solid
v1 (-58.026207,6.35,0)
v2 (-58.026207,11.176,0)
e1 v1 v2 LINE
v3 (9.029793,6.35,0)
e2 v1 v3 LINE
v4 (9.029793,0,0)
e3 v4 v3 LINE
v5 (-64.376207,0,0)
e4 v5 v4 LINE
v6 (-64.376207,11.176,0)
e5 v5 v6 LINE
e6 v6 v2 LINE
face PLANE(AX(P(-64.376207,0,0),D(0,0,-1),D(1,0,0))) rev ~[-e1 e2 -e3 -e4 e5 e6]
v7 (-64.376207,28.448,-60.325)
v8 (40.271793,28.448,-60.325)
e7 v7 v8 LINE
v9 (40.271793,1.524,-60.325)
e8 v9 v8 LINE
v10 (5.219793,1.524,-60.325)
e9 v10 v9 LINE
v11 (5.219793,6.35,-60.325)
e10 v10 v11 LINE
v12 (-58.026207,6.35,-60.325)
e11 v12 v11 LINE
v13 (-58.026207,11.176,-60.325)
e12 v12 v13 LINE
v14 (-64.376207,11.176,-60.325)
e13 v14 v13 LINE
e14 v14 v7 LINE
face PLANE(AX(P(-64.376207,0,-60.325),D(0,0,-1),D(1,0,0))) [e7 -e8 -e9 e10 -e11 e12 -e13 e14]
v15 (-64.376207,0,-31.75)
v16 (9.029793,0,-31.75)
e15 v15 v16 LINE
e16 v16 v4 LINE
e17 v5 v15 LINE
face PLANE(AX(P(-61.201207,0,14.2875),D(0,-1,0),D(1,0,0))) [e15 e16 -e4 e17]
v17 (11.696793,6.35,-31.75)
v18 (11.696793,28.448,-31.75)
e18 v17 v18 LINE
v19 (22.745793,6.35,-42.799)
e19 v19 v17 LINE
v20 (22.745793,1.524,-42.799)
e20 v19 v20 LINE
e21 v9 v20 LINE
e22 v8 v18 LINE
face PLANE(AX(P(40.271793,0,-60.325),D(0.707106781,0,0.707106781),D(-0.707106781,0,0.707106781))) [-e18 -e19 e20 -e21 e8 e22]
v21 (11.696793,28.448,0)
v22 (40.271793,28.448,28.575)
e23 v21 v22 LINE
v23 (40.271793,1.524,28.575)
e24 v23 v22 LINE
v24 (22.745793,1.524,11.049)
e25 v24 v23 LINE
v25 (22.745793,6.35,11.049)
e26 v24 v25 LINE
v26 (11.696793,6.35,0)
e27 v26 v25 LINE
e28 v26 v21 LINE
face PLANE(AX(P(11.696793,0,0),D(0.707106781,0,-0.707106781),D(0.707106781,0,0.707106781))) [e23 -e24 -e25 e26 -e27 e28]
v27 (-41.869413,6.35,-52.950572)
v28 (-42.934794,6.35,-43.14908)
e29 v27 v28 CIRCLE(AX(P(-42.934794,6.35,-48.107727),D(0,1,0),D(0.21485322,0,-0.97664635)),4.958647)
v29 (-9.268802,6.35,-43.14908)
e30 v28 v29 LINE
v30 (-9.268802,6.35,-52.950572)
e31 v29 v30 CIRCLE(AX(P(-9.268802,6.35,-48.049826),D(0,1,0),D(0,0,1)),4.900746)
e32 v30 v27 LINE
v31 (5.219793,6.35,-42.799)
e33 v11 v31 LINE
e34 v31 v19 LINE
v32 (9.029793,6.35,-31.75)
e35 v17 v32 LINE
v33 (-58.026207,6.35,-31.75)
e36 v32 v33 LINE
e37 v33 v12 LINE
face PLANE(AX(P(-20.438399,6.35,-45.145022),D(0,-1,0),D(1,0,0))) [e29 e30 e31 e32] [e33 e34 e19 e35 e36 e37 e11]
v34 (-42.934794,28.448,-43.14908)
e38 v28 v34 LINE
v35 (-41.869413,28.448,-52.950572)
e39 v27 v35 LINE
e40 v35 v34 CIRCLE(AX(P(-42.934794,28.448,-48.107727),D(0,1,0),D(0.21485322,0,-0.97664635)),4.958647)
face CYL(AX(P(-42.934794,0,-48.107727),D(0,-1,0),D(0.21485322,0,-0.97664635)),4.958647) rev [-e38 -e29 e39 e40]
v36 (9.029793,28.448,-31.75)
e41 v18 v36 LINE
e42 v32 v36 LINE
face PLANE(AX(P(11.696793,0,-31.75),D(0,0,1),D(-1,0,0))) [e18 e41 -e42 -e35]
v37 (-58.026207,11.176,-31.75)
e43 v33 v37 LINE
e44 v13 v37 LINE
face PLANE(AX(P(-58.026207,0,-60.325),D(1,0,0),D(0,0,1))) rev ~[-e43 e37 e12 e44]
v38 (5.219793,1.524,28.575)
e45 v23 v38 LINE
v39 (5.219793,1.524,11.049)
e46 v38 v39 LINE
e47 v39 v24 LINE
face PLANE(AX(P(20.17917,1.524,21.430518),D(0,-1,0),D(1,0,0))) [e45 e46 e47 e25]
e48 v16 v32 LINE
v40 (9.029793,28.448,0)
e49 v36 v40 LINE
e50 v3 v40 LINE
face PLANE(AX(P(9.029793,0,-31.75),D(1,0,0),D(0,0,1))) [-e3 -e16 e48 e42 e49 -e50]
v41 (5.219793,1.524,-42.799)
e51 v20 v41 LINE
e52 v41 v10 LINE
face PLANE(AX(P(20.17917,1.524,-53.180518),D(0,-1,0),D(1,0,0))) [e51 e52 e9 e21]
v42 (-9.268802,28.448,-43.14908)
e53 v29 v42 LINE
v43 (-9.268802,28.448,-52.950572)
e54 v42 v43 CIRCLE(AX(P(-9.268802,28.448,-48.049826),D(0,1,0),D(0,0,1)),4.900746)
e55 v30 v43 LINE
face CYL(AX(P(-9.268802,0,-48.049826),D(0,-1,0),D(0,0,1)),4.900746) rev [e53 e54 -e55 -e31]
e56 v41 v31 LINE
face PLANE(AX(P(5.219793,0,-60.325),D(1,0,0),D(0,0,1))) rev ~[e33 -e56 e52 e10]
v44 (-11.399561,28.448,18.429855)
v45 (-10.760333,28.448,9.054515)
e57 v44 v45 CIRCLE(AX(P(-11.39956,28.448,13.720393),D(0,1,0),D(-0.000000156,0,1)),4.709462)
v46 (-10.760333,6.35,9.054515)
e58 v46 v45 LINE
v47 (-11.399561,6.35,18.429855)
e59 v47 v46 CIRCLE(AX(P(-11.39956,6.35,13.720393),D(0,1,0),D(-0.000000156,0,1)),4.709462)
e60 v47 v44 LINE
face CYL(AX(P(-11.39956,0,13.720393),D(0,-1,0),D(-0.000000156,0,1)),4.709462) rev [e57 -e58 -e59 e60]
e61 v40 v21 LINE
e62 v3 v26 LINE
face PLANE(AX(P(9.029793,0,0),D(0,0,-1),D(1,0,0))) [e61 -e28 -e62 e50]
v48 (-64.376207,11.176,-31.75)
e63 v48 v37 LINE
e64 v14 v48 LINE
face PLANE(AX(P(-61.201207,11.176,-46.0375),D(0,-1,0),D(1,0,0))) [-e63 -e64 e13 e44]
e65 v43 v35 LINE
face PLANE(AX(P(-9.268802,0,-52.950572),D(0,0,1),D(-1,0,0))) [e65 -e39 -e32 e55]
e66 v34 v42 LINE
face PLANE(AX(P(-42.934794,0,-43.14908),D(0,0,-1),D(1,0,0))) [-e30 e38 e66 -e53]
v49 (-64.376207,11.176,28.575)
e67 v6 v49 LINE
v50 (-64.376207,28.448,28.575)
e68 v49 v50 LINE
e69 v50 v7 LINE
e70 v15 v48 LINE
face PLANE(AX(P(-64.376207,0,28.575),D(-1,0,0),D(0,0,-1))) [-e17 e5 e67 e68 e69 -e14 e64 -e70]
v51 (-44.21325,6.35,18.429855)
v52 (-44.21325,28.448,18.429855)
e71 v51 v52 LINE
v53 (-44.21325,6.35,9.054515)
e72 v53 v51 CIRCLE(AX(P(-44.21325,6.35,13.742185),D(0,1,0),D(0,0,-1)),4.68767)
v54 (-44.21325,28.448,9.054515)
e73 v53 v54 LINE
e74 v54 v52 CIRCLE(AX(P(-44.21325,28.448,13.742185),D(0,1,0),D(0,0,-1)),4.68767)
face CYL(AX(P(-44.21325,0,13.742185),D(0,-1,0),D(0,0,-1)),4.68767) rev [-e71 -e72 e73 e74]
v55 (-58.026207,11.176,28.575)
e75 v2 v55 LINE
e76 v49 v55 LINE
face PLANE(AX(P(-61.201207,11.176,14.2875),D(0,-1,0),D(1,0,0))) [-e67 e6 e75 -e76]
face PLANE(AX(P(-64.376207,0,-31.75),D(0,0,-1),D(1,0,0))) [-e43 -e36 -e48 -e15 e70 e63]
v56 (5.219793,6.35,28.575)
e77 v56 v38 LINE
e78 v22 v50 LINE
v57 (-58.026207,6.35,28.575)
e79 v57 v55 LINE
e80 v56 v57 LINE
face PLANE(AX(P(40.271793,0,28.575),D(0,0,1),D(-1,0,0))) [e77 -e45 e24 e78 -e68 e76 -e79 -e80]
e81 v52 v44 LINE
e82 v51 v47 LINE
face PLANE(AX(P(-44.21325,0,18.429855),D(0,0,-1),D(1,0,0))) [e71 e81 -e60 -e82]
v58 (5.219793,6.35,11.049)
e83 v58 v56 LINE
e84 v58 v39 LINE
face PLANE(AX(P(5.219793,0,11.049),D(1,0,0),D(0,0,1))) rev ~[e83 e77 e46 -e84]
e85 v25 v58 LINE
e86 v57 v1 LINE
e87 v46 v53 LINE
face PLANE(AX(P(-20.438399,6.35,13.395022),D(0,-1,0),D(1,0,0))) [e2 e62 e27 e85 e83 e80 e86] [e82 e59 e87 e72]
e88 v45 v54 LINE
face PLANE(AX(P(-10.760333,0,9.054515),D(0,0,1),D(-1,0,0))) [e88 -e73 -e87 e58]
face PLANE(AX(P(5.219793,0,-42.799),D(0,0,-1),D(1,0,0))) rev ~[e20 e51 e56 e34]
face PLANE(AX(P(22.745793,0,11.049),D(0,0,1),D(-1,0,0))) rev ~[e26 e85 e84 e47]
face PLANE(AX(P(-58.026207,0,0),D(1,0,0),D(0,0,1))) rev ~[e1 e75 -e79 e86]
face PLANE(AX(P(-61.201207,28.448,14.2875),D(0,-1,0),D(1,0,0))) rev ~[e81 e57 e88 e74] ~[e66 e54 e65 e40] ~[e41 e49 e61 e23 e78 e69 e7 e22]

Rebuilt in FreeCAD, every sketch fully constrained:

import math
import FreeCAD as App
import Part
import Sketcher

V = App.Vector
Q = App.Units.Quantity

doc = App.newDocument("Part")
body = doc.addObject("PartDesign::Body", "Body")

sketch1 = body.newObject("Sketcher::SketchObject", "Sketch")
sketch1.AttachmentSupport = (doc.getObject("XZ_Plane"), [""])
sketch1.MapMode = "FlatFace"
sketch1.addGeometry(Part.LineSegment(V(-64.376207, 28.575, 0), V(-64.376207, -60.325, 0)), False)
sketch1.addGeometry(Part.LineSegment(V(-64.376207, -60.325, 0), V(40.271793, -60.325, 0)), False)
sketch1.addGeometry(Part.LineSegment(V(40.271793, -60.325, 0), V(11.696793, -31.75, 0)), False)
sketch1.addGeometry(Part.LineSegment(V(11.696793, -31.75, 0), V(9.029793, -31.75, 0)), False)
sketch1.addGeometry(Part.LineSegment(V(9.029793, -31.75, 0), V(9.029793, 0, 0)), False)
sketch1.addGeometry(Part.LineSegment(V(9.029793, 0, 0), V(11.696793, 0, 0)), False)
sketch1.addGeometry(Part.LineSegment(V(11.696793, 0, 0), V(40.271793, 28.575, 0)), False)
sketch1.addGeometry(Part.LineSegment(V(40.271793, 28.575, 0), V(-64.376207, 28.575, 0)), False)
sketch1.addGeometry(Part.LineSegment(V(-9.268802, -52.950572, 0), V(-41.869413, -52.950572, 0)), False)
sketch1.addGeometry(Part.ArcOfCircle(Part.Circle(V(-42.934794, -48.107727, 0), V(0, 0, 1), 4.958647), math.radians(89.999996), math.radians(282.406916)), False)
sketch1.addGeometry(Part.LineSegment(V(-42.934794, -43.14908, 0), V(-9.268802, -43.14908, 0)), False)
sketch1.addGeometry(Part.ArcOfCircle(Part.Circle(V(-9.268802, -48.049826, 0), V(0, 0, 1), 4.900746), math.radians(-90), math.radians(90)), False)
sketch1.addGeometry(Part.LineSegment(V(-10.760333, 9.054515, 0), V(-44.21325, 9.054515, 0)), False)
sketch1.addGeometry(Part.ArcOfCircle(Part.Circle(V(-44.21325, 13.742185, 0), V(0, 0, 1), 4.68767), math.radians(90), math.radians(270)), False)
sketch1.addGeometry(Part.LineSegment(V(-44.21325, 18.429855, 0), V(-11.399561, 18.429855, 0)), False)
sketch1.addGeometry(Part.ArcOfCircle(Part.Circle(V(-11.39956, 13.720393, 0), V(0, 0, 1), 4.709462), math.radians(-82.199018), math.radians(90.000009)), False)
sketch1.addConstraint(Sketcher.Constraint("Coincident", 0, 2, 1, 1))
sketch1.addConstraint(Sketcher.Constraint("Coincident", 1, 2, 2, 1))
sketch1.addConstraint(Sketcher.Constraint("Coincident", 2, 2, 3, 1))
sketch1.addConstraint(Sketcher.Constraint("Coincident", 3, 2, 4, 1))
sketch1.addConstraint(Sketcher.Constraint("Coincident", 4, 2, 5, 1))
sketch1.addConstraint(Sketcher.Constraint("Coincident", 5, 2, 6, 1))
sketch1.addConstraint(Sketcher.Constraint("Coincident", 6, 2, 7, 1))
sketch1.addConstraint(Sketcher.Constraint("Coincident", 7, 2, 0, 1))
sketch1.addConstraint(Sketcher.Constraint("Coincident", 8, 2, 9, 2))
sketch1.addConstraint(Sketcher.Constraint("Tangent", 9, 1, 10, 1))
sketch1.addConstraint(Sketcher.Constraint("Tangent", 10, 2, 11, 2))
sketch1.addConstraint(Sketcher.Constraint("Tangent", 11, 1, 8, 1))
sketch1.addConstraint(Sketcher.Constraint("Tangent", 12, 2, 13, 2))
sketch1.addConstraint(Sketcher.Constraint("Tangent", 13, 1, 14, 1))
sketch1.addConstraint(Sketcher.Constraint("Tangent", 14, 2, 15, 2))
sketch1.addConstraint(Sketcher.Constraint("Coincident", 15, 1, 12, 1))
sketch1.addConstraint(Sketcher.Constraint("Vertical", 0))
sketch1.addConstraint(Sketcher.Constraint("Horizontal", 1))
sketch1.addConstraint(Sketcher.Constraint("Horizontal", 3))
sketch1.addConstraint(Sketcher.Constraint("Vertical", 4))
sketch1.addConstraint(Sketcher.Constraint("Horizontal", 5))
sketch1.addConstraint(Sketcher.Constraint("Horizontal", 7))
sketch1.addConstraint(Sketcher.Constraint("Horizontal", 8))
sketch1.addConstraint(Sketcher.Constraint("Horizontal", 10))
sketch1.addConstraint(Sketcher.Constraint("Horizontal", 12))
sketch1.addConstraint(Sketcher.Constraint("Horizontal", 14))
sketch1.addConstraint(Sketcher.Constraint("PointOnObject", 4, 2, -1))
sketch1.addConstraint(Sketcher.Constraint("Perpendicular", 2, 6))
sketch1.addConstraint(Sketcher.Constraint("Vertical", 2, 2, 5, 2))
sketch1.addConstraint(Sketcher.Constraint("Vertical", 1, 2, 6, 2))
sketch1.addConstraint(Sketcher.Constraint("Equal", 2, 6))
sketch1.addConstraint(Sketcher.Constraint("DistanceY", 0, 2, 0, 1, Q("3.5 in")))
sketch1.addConstraint(Sketcher.Constraint("DistanceX", 1, 1, 1, 2, Q("4.12 in")))
sketch1.addConstraint(Sketcher.Constraint("DistanceY", 4, 1, 4, 2, Q("1.25 in")))
sketch1.addConstraint(Sketcher.Constraint("DistanceX", 3, 2, 3, 1, Q("0.105 in")))
sketch1.addConstraint(Sketcher.Constraint("Radius", 13, 4.68767))
sketch1.addConstraint(Sketcher.Constraint("Radius", 15, 4.709462))
sketch1.addConstraint(Sketcher.Constraint("Radius", 9, 4.958647))
sketch1.addConstraint(Sketcher.Constraint("Radius", 11, 4.900746))
sketch1.addConstraint(Sketcher.Constraint("DistanceX", 8, 2, 8, 1, 32.600611))
sketch1.addConstraint(Sketcher.Constraint("DistanceX", 14, 1, 14, 2, 32.813689))
sketch1.addConstraint(Sketcher.Constraint("DistanceX", 13, 3, -1, 1, 44.21325))
sketch1.addConstraint(Sketcher.Constraint("DistanceY", 9, 1, -1, 1, 43.14908))
sketch1.addConstraint(Sketcher.Constraint("DistanceY", 11, 3, 13, 3, 61.792011))
sketch1.addConstraint(Sketcher.Constraint("DistanceX", 15, 3, 11, 3, 2.130758))
sketch1.addConstraint(Sketcher.Constraint("DistanceX", 0, 2, -1, 1, 64.376207))
pad1 = body.newObject("PartDesign::Pad", "Pad")
pad1.Profile = sketch1
pad1.Length = Q("1.12 in")
pad1.Reversed = True

sketch2 = body.newObject("Sketcher::SketchObject", "Sketch001")
sketch2.AttachmentSupport = (doc.getObject("XZ_Plane"), [""])
sketch2.MapMode = "FlatFace"
sketch2.addGeometry(Part.LineSegment(V(5.219793, 28.575, 0), V(-58.026207, 28.575, 0)), False)
sketch2.addGeometry(Part.LineSegment(V(-58.026207, 28.575, 0), V(-58.026207, 0, 0)), False)
sketch2.addGeometry(Part.LineSegment(V(-58.026207, 0, 0), V(11.696793, 0, 0)), False)
sketch2.addGeometry(Part.LineSegment(V(11.696793, 0, 0), V(22.745793, 11.049, 0)), False)
sketch2.addGeometry(Part.LineSegment(V(22.745793, 11.049, 0), V(5.219793, 11.049, 0)), False)
sketch2.addGeometry(Part.LineSegment(V(5.219793, 11.049, 0), V(5.219793, 28.575, 0)), False)
sketch2.addGeometry(Part.LineSegment(V(-10.760333, 9.054515, 0), V(-44.21325, 9.054515, 0)), False)
sketch2.addGeometry(Part.ArcOfCircle(Part.Circle(V(-44.21325, 13.742185, 0), V(0, 0, 1), 4.68767), math.radians(90), math.radians(270)), False)
sketch2.addGeometry(Part.LineSegment(V(-44.21325, 18.429855, 0), V(-11.399561, 18.429855, 0)), False)
sketch2.addGeometry(Part.ArcOfCircle(Part.Circle(V(-11.39956, 13.720393, 0), V(0, 0, 1), 4.709462), math.radians(-82.199018), math.radians(90.000009)), False)
sketch2.addConstraint(Sketcher.Constraint("Coincident", 0, 2, 1, 1))
sketch2.addConstraint(Sketcher.Constraint("Coincident", 1, 2, 2, 1))
sketch2.addConstraint(Sketcher.Constraint("Coincident", 2, 2, 3, 1))
sketch2.addConstraint(Sketcher.Constraint("Coincident", 3, 2, 4, 1))
sketch2.addConstraint(Sketcher.Constraint("Coincident", 4, 2, 5, 1))
sketch2.addConstraint(Sketcher.Constraint("Coincident", 5, 2, 0, 1))
sketch2.addConstraint(Sketcher.Constraint("Tangent", 6, 2, 7, 2))
sketch2.addConstraint(Sketcher.Constraint("Tangent", 7, 1, 8, 1))
sketch2.addConstraint(Sketcher.Constraint("Tangent", 8, 2, 9, 2))
sketch2.addConstraint(Sketcher.Constraint("Coincident", 9, 1, 6, 1))
sketch2.addConstraint(Sketcher.Constraint("Horizontal", 0))
sketch2.addConstraint(Sketcher.Constraint("Vertical", 1))
sketch2.addConstraint(Sketcher.Constraint("Horizontal", 2))
sketch2.addConstraint(Sketcher.Constraint("Horizontal", 4))
sketch2.addConstraint(Sketcher.Constraint("Vertical", 5))
sketch2.addConstraint(Sketcher.Constraint("Horizontal", 6))
sketch2.addConstraint(Sketcher.Constraint("Horizontal", 8))
sketch2.addConstraint(Sketcher.Constraint("PointOnObject", 1, 2, -1))
sketch2.addConstraint(Sketcher.Constraint("Equal", 4, 5))
sketch2.addConstraint(Sketcher.Constraint("Angle", 3, Q("45 deg")))
sketch2.addConstraint(Sketcher.Constraint("DistanceX", 0, 2, 0, 1, Q("2.49 in")))
sketch2.addConstraint(Sketcher.Constraint("DistanceX", 4, 2, 4, 1, Q("0.69 in")))
sketch2.addConstraint(Sketcher.Constraint("DistanceX", 2, 1, 2, 2, Q("2.745 in")))
sketch2.addConstraint(Sketcher.Constraint("Radius", 7, 4.68767))
sketch2.addConstraint(Sketcher.Constraint("Radius", 9, 4.709462))
sketch2.addConstraint(Sketcher.Constraint("DistanceX", 8, 1, 8, 2, 32.813689))
sketch2.addConstraint(Sketcher.Constraint("DistanceX", 7, 3, -1, 1, 44.21325))
sketch2.addConstraint(Sketcher.Constraint("DistanceY", -1, 1, 7, 3, 13.742185))
sketch2.addConstraint(Sketcher.Constraint("DistanceX", 0, 2, -1, 1, 58.026207))
pocket1 = body.newObject("PartDesign::Pocket", "Pocket")
pocket1.Profile = sketch2
pocket1.Length = Q("0.25 in")
pocket1.Reversed = True

sketch3 = body.newObject("Sketcher::SketchObject", "Sketch002")
sketch3.AttachmentSupport = (doc.getObject("XZ_Plane"), [""])
sketch3.MapMode = "FlatFace"
sketch3.addGeometry(Part.LineSegment(V(-58.026207, -31.75, 0), V(-58.026207, -60.325, 0)), False)
sketch3.addGeometry(Part.LineSegment(V(-58.026207, -60.325, 0), V(5.219793, -60.325, 0)), False)
sketch3.addGeometry(Part.LineSegment(V(5.219793, -60.325, 0), V(5.219793, -42.799, 0)), False)
sketch3.addGeometry(Part.LineSegment(V(5.219793, -42.799, 0), V(22.745793, -42.799, 0)), False)
sketch3.addGeometry(Part.LineSegment(V(22.745793, -42.799, 0), V(11.696793, -31.75, 0)), False)
sketch3.addGeometry(Part.LineSegment(V(11.696793, -31.75, 0), V(-58.026207, -31.75, 0)), False)
sketch3.addGeometry(Part.LineSegment(V(-9.268802, -52.950572, 0), V(-41.869413, -52.950572, 0)), False)
sketch3.addGeometry(Part.ArcOfCircle(Part.Circle(V(-42.934794, -48.107727, 0), V(0, 0, 1), 4.958647), math.radians(89.999996), math.radians(282.406916)), False)
sketch3.addGeometry(Part.LineSegment(V(-42.934794, -43.14908, 0), V(-9.268802, -43.14908, 0)), False)
sketch3.addGeometry(Part.ArcOfCircle(Part.Circle(V(-9.268802, -48.049826, 0), V(0, 0, 1), 4.900746), math.radians(-90), math.radians(90)), False)
sketch3.addConstraint(Sketcher.Constraint("Coincident", 0, 2, 1, 1))
sketch3.addConstraint(Sketcher.Constraint("Coincident", 1, 2, 2, 1))
sketch3.addConstraint(Sketcher.Constraint("Coincident", 2, 2, 3, 1))
sketch3.addConstraint(Sketcher.Constraint("Coincident", 3, 2, 4, 1))
sketch3.addConstraint(Sketcher.Constraint("Coincident", 4, 2, 5, 1))
sketch3.addConstraint(Sketcher.Constraint("Coincident", 5, 2, 0, 1))
sketch3.addConstraint(Sketcher.Constraint("Coincident", 6, 2, 7, 2))
sketch3.addConstraint(Sketcher.Constraint("Tangent", 7, 1, 8, 1))
sketch3.addConstraint(Sketcher.Constraint("Tangent", 8, 2, 9, 2))
sketch3.addConstraint(Sketcher.Constraint("Tangent", 9, 1, 6, 1))
sketch3.addConstraint(Sketcher.Constraint("Vertical", 0))
sketch3.addConstraint(Sketcher.Constraint("Horizontal", 1))
sketch3.addConstraint(Sketcher.Constraint("Vertical", 2))
sketch3.addConstraint(Sketcher.Constraint("Horizontal", 3))
sketch3.addConstraint(Sketcher.Constraint("Horizontal", 5))
sketch3.addConstraint(Sketcher.Constraint("Horizontal", 6))
sketch3.addConstraint(Sketcher.Constraint("Horizontal", 8))
sketch3.addConstraint(Sketcher.Constraint("Equal", 3, 2))
sketch3.addConstraint(Sketcher.Constraint("Angle", 4, Q("135 deg")))
sketch3.addConstraint(Sketcher.Constraint("DistanceX", 1, 1, 1, 2, Q("2.49 in")))
sketch3.addConstraint(Sketcher.Constraint("DistanceX", 3, 1, 3, 2, Q("0.69 in")))
sketch3.addConstraint(Sketcher.Constraint("DistanceX", 5, 2, 5, 1, Q("2.745 in")))
sketch3.addConstraint(Sketcher.Constraint("DistanceY", 4, 2, -1, 1, Q("1.25 in")))
sketch3.addConstraint(Sketcher.Constraint("Radius", 7, 4.958647))
sketch3.addConstraint(Sketcher.Constraint("Radius", 9, 4.900746))
sketch3.addConstraint(Sketcher.Constraint("DistanceX", 6, 2, 6, 1, 32.600611))
sketch3.addConstraint(Sketcher.Constraint("DistanceY", 7, 1, -1, 1, 43.14908))
sketch3.addConstraint(Sketcher.Constraint("DistanceX", 7, 3, -1, 1, 42.934794))
sketch3.addConstraint(Sketcher.Constraint("DistanceX", 0, 2, -1, 1, 58.026207))
pocket2 = body.newObject("PartDesign::Pocket", "Pocket001")
pocket2.Profile = sketch3
pocket2.Length = Q("0.25 in")
pocket2.Reversed = True

sketch4 = body.newObject("Sketcher::SketchObject", "Sketch003")
sketch4.AttachmentSupport = (doc.getObject("XZ_Plane"), [""])
sketch4.MapMode = "FlatFace"
sketch4.addGeometry(Part.LineSegment(V(5.219793, 28.575, 0), V(-58.026207, 28.575, 0)), False)
sketch4.addGeometry(Part.LineSegment(V(-58.026207, 28.575, 0), V(-58.026207, 0, 0)), False)
sketch4.addGeometry(Part.LineSegment(V(-58.026207, 0, 0), V(11.696793, 0, 0)), False)
sketch4.addGeometry(Part.LineSegment(V(11.696793, 0, 0), V(22.745793, 11.049, 0)), False)
sketch4.addGeometry(Part.LineSegment(V(22.745793, 11.049, 0), V(5.219793, 11.049, 0)), False)
sketch4.addGeometry(Part.LineSegment(V(5.219793, 11.049, 0), V(5.219793, 28.575, 0)), False)
sketch4.addGeometry(Part.LineSegment(V(-10.760333, 9.054515, 0), V(-44.21325, 9.054515, 0)), False)
sketch4.addGeometry(Part.ArcOfCircle(Part.Circle(V(-44.21325, 13.742185, 0), V(0, 0, 1), 4.68767), math.radians(90), math.radians(270)), False)
sketch4.addGeometry(Part.LineSegment(V(-44.21325, 18.429855, 0), V(-11.399561, 18.429855, 0)), False)
sketch4.addGeometry(Part.ArcOfCircle(Part.Circle(V(-11.39956, 13.720393, 0), V(0, 0, 1), 4.709462), math.radians(-82.199018), math.radians(90.000009)), False)
sketch4.addConstraint(Sketcher.Constraint("Coincident", 0, 2, 1, 1))
sketch4.addConstraint(Sketcher.Constraint("Coincident", 1, 2, 2, 1))
sketch4.addConstraint(Sketcher.Constraint("Coincident", 2, 2, 3, 1))
sketch4.addConstraint(Sketcher.Constraint("Coincident", 3, 2, 4, 1))
sketch4.addConstraint(Sketcher.Constraint("Coincident", 4, 2, 5, 1))
sketch4.addConstraint(Sketcher.Constraint("Coincident", 5, 2, 0, 1))
sketch4.addConstraint(Sketcher.Constraint("Tangent", 6, 2, 7, 2))
sketch4.addConstraint(Sketcher.Constraint("Tangent", 7, 1, 8, 1))
sketch4.addConstraint(Sketcher.Constraint("Tangent", 8, 2, 9, 2))
sketch4.addConstraint(Sketcher.Constraint("Coincident", 9, 1, 6, 1))
sketch4.addConstraint(Sketcher.Constraint("Horizontal", 0))
sketch4.addConstraint(Sketcher.Constraint("Vertical", 1))
sketch4.addConstraint(Sketcher.Constraint("Horizontal", 2))
sketch4.addConstraint(Sketcher.Constraint("Horizontal", 4))
sketch4.addConstraint(Sketcher.Constraint("Vertical", 5))
sketch4.addConstraint(Sketcher.Constraint("Horizontal", 6))
sketch4.addConstraint(Sketcher.Constraint("Horizontal", 8))
sketch4.addConstraint(Sketcher.Constraint("PointOnObject", 1, 2, -1))
sketch4.addConstraint(Sketcher.Constraint("Equal", 4, 5))
sketch4.addConstraint(Sketcher.Constraint("Angle", 3, Q("45 deg")))
sketch4.addConstraint(Sketcher.Constraint("DistanceX", 0, 2, 0, 1, Q("2.49 in")))
sketch4.addConstraint(Sketcher.Constraint("DistanceX", 4, 2, 4, 1, Q("0.69 in")))
sketch4.addConstraint(Sketcher.Constraint("DistanceX", 2, 1, 2, 2, Q("2.745 in")))
sketch4.addConstraint(Sketcher.Constraint("Radius", 7, 4.68767))
sketch4.addConstraint(Sketcher.Constraint("Radius", 9, 4.709462))
sketch4.addConstraint(Sketcher.Constraint("DistanceX", 8, 1, 8, 2, 32.813689))
sketch4.addConstraint(Sketcher.Constraint("DistanceX", 7, 3, -1, 1, 44.21325))
sketch4.addConstraint(Sketcher.Constraint("DistanceY", -1, 1, 7, 3, 13.742185))
sketch4.addConstraint(Sketcher.Constraint("DistanceX", 0, 2, -1, 1, 58.026207))
pocket3 = body.newObject("PartDesign::Pocket", "Pocket002")
pocket3.Profile = sketch4
pocket3.Length = Q("0.25 in")

sketch5 = body.newObject("Sketcher::SketchObject", "Sketch004")
sketch5.AttachmentSupport = (doc.getObject("XZ_Plane"), [""])
sketch5.MapMode = "FlatFace"
sketch5.addGeometry(Part.LineSegment(V(5.219793, 28.575, 0), V(-58.026207, 28.575, 0)), False)
sketch5.addGeometry(Part.LineSegment(V(-58.026207, 28.575, 0), V(-58.026207, 0, 0)), False)
sketch5.addGeometry(Part.LineSegment(V(-58.026207, 0, 0), V(11.696793, 0, 0)), False)
sketch5.addGeometry(Part.LineSegment(V(11.696793, 0, 0), V(22.745793, 11.049, 0)), False)
sketch5.addGeometry(Part.LineSegment(V(22.745793, 11.049, 0), V(5.219793, 11.049, 0)), False)
sketch5.addGeometry(Part.LineSegment(V(5.219793, 11.049, 0), V(5.219793, 28.575, 0)), False)
sketch5.addGeometry(Part.LineSegment(V(-10.760333, 9.054515, 0), V(-44.21325, 9.054515, 0)), False)
sketch5.addGeometry(Part.ArcOfCircle(Part.Circle(V(-44.21325, 13.742185, 0), V(0, 0, 1), 4.68767), math.radians(90), math.radians(270)), False)
sketch5.addGeometry(Part.LineSegment(V(-44.21325, 18.429855, 0), V(-11.399561, 18.429855, 0)), False)
sketch5.addGeometry(Part.ArcOfCircle(Part.Circle(V(-11.39956, 13.720393, 0), V(0, 0, 1), 4.709462), math.radians(-82.199018), math.radians(90.000009)), False)
sketch5.addGeometry(Part.LineSegment(V(-58.026207, -31.75, 0), V(-58.026207, -60.325, 0)), False)
sketch5.addGeometry(Part.LineSegment(V(-58.026207, -60.325, 0), V(5.219793, -60.325, 0)), False)
sketch5.addGeometry(Part.LineSegment(V(5.219793, -60.325, 0), V(5.219793, -42.799, 0)), False)
sketch5.addGeometry(Part.LineSegment(V(5.219793, -42.799, 0), V(22.745793, -42.799, 0)), False)
sketch5.addGeometry(Part.LineSegment(V(22.745793, -42.799, 0), V(11.696793, -31.75, 0)), False)
sketch5.addGeometry(Part.LineSegment(V(11.696793, -31.75, 0), V(-58.026207, -31.75, 0)), False)
sketch5.addGeometry(Part.LineSegment(V(-9.268802, -52.950572, 0), V(-41.869413, -52.950572, 0)), False)
sketch5.addGeometry(Part.ArcOfCircle(Part.Circle(V(-42.934794, -48.107727, 0), V(0, 0, 1), 4.958647), math.radians(89.999996), math.radians(282.406916)), False)
sketch5.addGeometry(Part.LineSegment(V(-42.934794, -43.14908, 0), V(-9.268802, -43.14908, 0)), False)
sketch5.addGeometry(Part.ArcOfCircle(Part.Circle(V(-9.268802, -48.049826, 0), V(0, 0, 1), 4.900746), math.radians(-90), math.radians(90)), False)
sketch5.addConstraint(Sketcher.Constraint("Coincident", 0, 2, 1, 1))
sketch5.addConstraint(Sketcher.Constraint("Coincident", 1, 2, 2, 1))
sketch5.addConstraint(Sketcher.Constraint("Coincident", 2, 2, 3, 1))
sketch5.addConstraint(Sketcher.Constraint("Coincident", 3, 2, 4, 1))
sketch5.addConstraint(Sketcher.Constraint("Coincident", 4, 2, 5, 1))
sketch5.addConstraint(Sketcher.Constraint("Coincident", 5, 2, 0, 1))
sketch5.addConstraint(Sketcher.Constraint("Tangent", 6, 2, 7, 2))
sketch5.addConstraint(Sketcher.Constraint("Tangent", 7, 1, 8, 1))
sketch5.addConstraint(Sketcher.Constraint("Tangent", 8, 2, 9, 2))
sketch5.addConstraint(Sketcher.Constraint("Coincident", 9, 1, 6, 1))
sketch5.addConstraint(Sketcher.Constraint("Coincident", 10, 2, 11, 1))
sketch5.addConstraint(Sketcher.Constraint("Coincident", 11, 2, 12, 1))
sketch5.addConstraint(Sketcher.Constraint("Coincident", 12, 2, 13, 1))
sketch5.addConstraint(Sketcher.Constraint("Coincident", 13, 2, 14, 1))
sketch5.addConstraint(Sketcher.Constraint("Coincident", 14, 2, 15, 1))
sketch5.addConstraint(Sketcher.Constraint("Coincident", 15, 2, 10, 1))
sketch5.addConstraint(Sketcher.Constraint("Coincident", 16, 2, 17, 2))
sketch5.addConstraint(Sketcher.Constraint("Tangent", 17, 1, 18, 1))
sketch5.addConstraint(Sketcher.Constraint("Tangent", 18, 2, 19, 2))
sketch5.addConstraint(Sketcher.Constraint("Tangent", 19, 1, 16, 1))
sketch5.addConstraint(Sketcher.Constraint("Horizontal", 0))
sketch5.addConstraint(Sketcher.Constraint("Vertical", 1))
sketch5.addConstraint(Sketcher.Constraint("Horizontal", 2))
sketch5.addConstraint(Sketcher.Constraint("Horizontal", 4))
sketch5.addConstraint(Sketcher.Constraint("Vertical", 5))
sketch5.addConstraint(Sketcher.Constraint("Horizontal", 6))
sketch5.addConstraint(Sketcher.Constraint("Horizontal", 8))
sketch5.addConstraint(Sketcher.Constraint("Vertical", 10))
sketch5.addConstraint(Sketcher.Constraint("Horizontal", 11))
sketch5.addConstraint(Sketcher.Constraint("Vertical", 12))
sketch5.addConstraint(Sketcher.Constraint("Horizontal", 13))
sketch5.addConstraint(Sketcher.Constraint("Horizontal", 15))
sketch5.addConstraint(Sketcher.Constraint("Horizontal", 16))
sketch5.addConstraint(Sketcher.Constraint("Horizontal", 18))
sketch5.addConstraint(Sketcher.Constraint("PointOnObject", 1, 2, -1))
sketch5.addConstraint(Sketcher.Constraint("Perpendicular", 3, 14))
sketch5.addConstraint(Sketcher.Constraint("Vertical", 1, 2, 10, 2))
sketch5.addConstraint(Sketcher.Constraint("Vertical", 5, 2, 11, 2))
sketch5.addConstraint(Sketcher.Constraint("Vertical", 3, 2, 13, 2))
sketch5.addConstraint(Sketcher.Constraint("Vertical", 2, 2, 14, 2))
sketch5.addConstraint(Sketcher.Constraint("Equal", 13, 5))
sketch5.addConstraint(Sketcher.Constraint("Equal", 1, 10))
sketch5.addConstraint(Sketcher.Constraint("Equal", 5, 12))
sketch5.addConstraint(Sketcher.Constraint("DistanceX", 0, 2, 0, 1, Q("2.49 in")))
sketch5.addConstraint(Sketcher.Constraint("DistanceX", 4, 2, 4, 1, Q("0.69 in")))
sketch5.addConstraint(Sketcher.Constraint("DistanceX", 2, 1, 2, 2, Q("2.745 in")))
sketch5.addConstraint(Sketcher.Constraint("DistanceY", 14, 2, -1, 1, Q("1.25 in")))
sketch5.addConstraint(Sketcher.Constraint("Radius", 7, 4.68767))
sketch5.addConstraint(Sketcher.Constraint("Radius", 9, 4.709462))
sketch5.addConstraint(Sketcher.Constraint("Radius", 17, 4.958647))
sketch5.addConstraint(Sketcher.Constraint("Radius", 19, 4.900746))
sketch5.addConstraint(Sketcher.Constraint("DistanceX", 8, 1, 8, 2, 32.813689))
sketch5.addConstraint(Sketcher.Constraint("DistanceX", 16, 2, 16, 1, 32.600611))
sketch5.addConstraint(Sketcher.Constraint("DistanceX", 7, 3, -1, 1, 44.21325))
sketch5.addConstraint(Sketcher.Constraint("DistanceY", 17, 1, -1, 1, 43.14908))
sketch5.addConstraint(Sketcher.Constraint("DistanceY", 17, 3, 9, 3, 61.82812))
sketch5.addConstraint(Sketcher.Constraint("DistanceX", 9, 3, 19, 3, 2.130758))
sketch5.addConstraint(Sketcher.Constraint("DistanceX", 0, 2, -1, 1, 58.026207))
pocket4 = body.newObject("PartDesign::Pocket", "Pocket003")
pocket4.Profile = sketch5
pocket4.Length = Q("0.44 in")
pocket4.Midplane = True

sketch6 = body.newObject("Sketcher::SketchObject", "Sketch005")
sketch6.AttachmentSupport = (doc.getObject("XZ_Plane"), [""])
sketch6.MapMode = "FlatFace"
sketch6.addGeometry(Part.LineSegment(V(5.219793, 28.575, 0), V(-58.026207, 28.575, 0)), False)
sketch6.addGeometry(Part.LineSegment(V(-58.026207, 28.575, 0), V(-58.026207, 0, 0)), False)
sketch6.addGeometry(Part.LineSegment(V(-58.026207, 0, 0), V(11.696793, 0, 0)), False)
sketch6.addGeometry(Part.LineSegment(V(11.696793, 0, 0), V(22.745793, 11.049, 0)), False)
sketch6.addGeometry(Part.LineSegment(V(22.745793, 11.049, 0), V(5.219793, 11.049, 0)), False)
sketch6.addGeometry(Part.LineSegment(V(5.219793, 11.049, 0), V(5.219793, 28.575, 0)), False)
sketch6.addGeometry(Part.LineSegment(V(-10.760333, 9.054515, 0), V(-44.21325, 9.054515, 0)), False)
sketch6.addGeometry(Part.ArcOfCircle(Part.Circle(V(-44.21325, 13.742185, 0), V(0, 0, 1), 4.68767), math.radians(90), math.radians(270)), False)
sketch6.addGeometry(Part.LineSegment(V(-44.21325, 18.429855, 0), V(-11.399561, 18.429855, 0)), False)
sketch6.addGeometry(Part.ArcOfCircle(Part.Circle(V(-11.39956, 13.720393, 0), V(0, 0, 1), 4.709462), math.radians(-82.199018), math.radians(90.000009)), False)
sketch6.addGeometry(Part.LineSegment(V(-58.026207, -31.75, 0), V(-58.026207, -60.325, 0)), False)
sketch6.addGeometry(Part.LineSegment(V(-58.026207, -60.325, 0), V(5.219793, -60.325, 0)), False)
sketch6.addGeometry(Part.LineSegment(V(5.219793, -60.325, 0), V(5.219793, -42.799, 0)), False)
sketch6.addGeometry(Part.LineSegment(V(5.219793, -42.799, 0), V(22.745793, -42.799, 0)), False)
sketch6.addGeometry(Part.LineSegment(V(22.745793, -42.799, 0), V(11.696793, -31.75, 0)), False)
sketch6.addGeometry(Part.LineSegment(V(11.696793, -31.75, 0), V(-58.026207, -31.75, 0)), False)
sketch6.addGeometry(Part.LineSegment(V(-9.268802, -52.950572, 0), V(-41.869413, -52.950572, 0)), False)
sketch6.addGeometry(Part.ArcOfCircle(Part.Circle(V(-42.934794, -48.107727, 0), V(0, 0, 1), 4.958647), math.radians(89.999996), math.radians(282.406916)), False)
sketch6.addGeometry(Part.LineSegment(V(-42.934794, -43.14908, 0), V(-9.268802, -43.14908, 0)), False)
sketch6.addGeometry(Part.ArcOfCircle(Part.Circle(V(-9.268802, -48.049826, 0), V(0, 0, 1), 4.900746), math.radians(-90), math.radians(90)), False)
sketch6.addConstraint(Sketcher.Constraint("Coincident", 0, 2, 1, 1))
sketch6.addConstraint(Sketcher.Constraint("Coincident", 1, 2, 2, 1))
sketch6.addConstraint(Sketcher.Constraint("Coincident", 2, 2, 3, 1))
sketch6.addConstraint(Sketcher.Constraint("Coincident", 3, 2, 4, 1))
sketch6.addConstraint(Sketcher.Constraint("Coincident", 4, 2, 5, 1))
sketch6.addConstraint(Sketcher.Constraint("Coincident", 5, 2, 0, 1))
sketch6.addConstraint(Sketcher.Constraint("Tangent", 6, 2, 7, 2))
sketch6.addConstraint(Sketcher.Constraint("Tangent", 7, 1, 8, 1))
sketch6.addConstraint(Sketcher.Constraint("Tangent", 8, 2, 9, 2))
sketch6.addConstraint(Sketcher.Constraint("Coincident", 9, 1, 6, 1))
sketch6.addConstraint(Sketcher.Constraint("Coincident", 10, 2, 11, 1))
sketch6.addConstraint(Sketcher.Constraint("Coincident", 11, 2, 12, 1))
sketch6.addConstraint(Sketcher.Constraint("Coincident", 12, 2, 13, 1))
sketch6.addConstraint(Sketcher.Constraint("Coincident", 13, 2, 14, 1))
sketch6.addConstraint(Sketcher.Constraint("Coincident", 14, 2, 15, 1))
sketch6.addConstraint(Sketcher.Constraint("Coincident", 15, 2, 10, 1))
sketch6.addConstraint(Sketcher.Constraint("Coincident", 16, 2, 17, 2))
sketch6.addConstraint(Sketcher.Constraint("Tangent", 17, 1, 18, 1))
sketch6.addConstraint(Sketcher.Constraint("Tangent", 18, 2, 19, 2))
sketch6.addConstraint(Sketcher.Constraint("Tangent", 19, 1, 16, 1))
sketch6.addConstraint(Sketcher.Constraint("Horizontal", 0))
sketch6.addConstraint(Sketcher.Constraint("Vertical", 1))
sketch6.addConstraint(Sketcher.Constraint("Horizontal", 2))
sketch6.addConstraint(Sketcher.Constraint("Horizontal", 4))
sketch6.addConstraint(Sketcher.Constraint("Vertical", 5))
sketch6.addConstraint(Sketcher.Constraint("Horizontal", 6))
sketch6.addConstraint(Sketcher.Constraint("Horizontal", 8))
sketch6.addConstraint(Sketcher.Constraint("Vertical", 10))
sketch6.addConstraint(Sketcher.Constraint("Horizontal", 11))
sketch6.addConstraint(Sketcher.Constraint("Vertical", 12))
sketch6.addConstraint(Sketcher.Constraint("Horizontal", 13))
sketch6.addConstraint(Sketcher.Constraint("Horizontal", 15))
sketch6.addConstraint(Sketcher.Constraint("Horizontal", 16))
sketch6.addConstraint(Sketcher.Constraint("Horizontal", 18))
sketch6.addConstraint(Sketcher.Constraint("PointOnObject", 1, 2, -1))
sketch6.addConstraint(Sketcher.Constraint("Perpendicular", 3, 14))
sketch6.addConstraint(Sketcher.Constraint("Vertical", 1, 2, 10, 2))
sketch6.addConstraint(Sketcher.Constraint("Vertical", 5, 2, 11, 2))
sketch6.addConstraint(Sketcher.Constraint("Vertical", 3, 2, 13, 2))
sketch6.addConstraint(Sketcher.Constraint("Vertical", 2, 2, 14, 2))
sketch6.addConstraint(Sketcher.Constraint("Equal", 13, 5))
sketch6.addConstraint(Sketcher.Constraint("Equal", 1, 10))
sketch6.addConstraint(Sketcher.Constraint("Equal", 5, 12))
sketch6.addConstraint(Sketcher.Constraint("DistanceX", 0, 2, 0, 1, Q("2.49 in")))
sketch6.addConstraint(Sketcher.Constraint("DistanceX", 4, 2, 4, 1, Q("0.69 in")))
sketch6.addConstraint(Sketcher.Constraint("DistanceX", 2, 1, 2, 2, Q("2.745 in")))
sketch6.addConstraint(Sketcher.Constraint("DistanceY", 14, 2, -1, 1, Q("1.25 in")))
sketch6.addConstraint(Sketcher.Constraint("Radius", 7, 4.68767))
sketch6.addConstraint(Sketcher.Constraint("Radius", 9, 4.709462))
sketch6.addConstraint(Sketcher.Constraint("Radius", 17, 4.958647))
sketch6.addConstraint(Sketcher.Constraint("Radius", 19, 4.900746))
sketch6.addConstraint(Sketcher.Constraint("DistanceX", 8, 1, 8, 2, 32.813689))
sketch6.addConstraint(Sketcher.Constraint("DistanceX", 16, 2, 16, 1, 32.600611))
sketch6.addConstraint(Sketcher.Constraint("DistanceX", 7, 3, -1, 1, 44.21325))
sketch6.addConstraint(Sketcher.Constraint("DistanceY", 17, 1, -1, 1, 43.14908))
sketch6.addConstraint(Sketcher.Constraint("DistanceY", 17, 3, 9, 3, 61.82812))
sketch6.addConstraint(Sketcher.Constraint("DistanceX", 9, 3, 19, 3, 2.130758))
sketch6.addConstraint(Sketcher.Constraint("DistanceX", 0, 2, -1, 1, 58.026207))
pocket5 = body.newObject("PartDesign::Pocket", "Pocket004")
pocket5.Profile = sketch6
pocket5.Length = Q("0.25 in")

sketch7 = body.newObject("Sketcher::SketchObject", "Sketch006")
sketch7.AttachmentSupport = (doc.getObject("XZ_Plane"), [""])
sketch7.MapMode = "FlatFace"
sketch7.addGeometry(Part.LineSegment(V(-64.376207, 28.575, 0), V(-64.376207, 0, 0)), False)
sketch7.addGeometry(Part.LineSegment(V(-64.376207, 0, 0), V(-58.026207, 0, 0)), False)
sketch7.addGeometry(Part.LineSegment(V(-58.026207, 0, 0), V(-58.026207, 28.575, 0)), False)
sketch7.addGeometry(Part.LineSegment(V(-58.026207, 28.575, 0), V(-64.376207, 28.575, 0)), False)
sketch7.addGeometry(Part.LineSegment(V(-64.376207, -31.75, 0), V(-64.376207, -60.325, 0)), False)
sketch7.addGeometry(Part.LineSegment(V(-64.376207, -60.325, 0), V(-58.026207, -60.325, 0)), False)
sketch7.addGeometry(Part.LineSegment(V(-58.026207, -60.325, 0), V(-58.026207, -31.75, 0)), False)
sketch7.addGeometry(Part.LineSegment(V(-58.026207, -31.75, 0), V(-64.376207, -31.75, 0)), False)
sketch7.addConstraint(Sketcher.Constraint("Coincident", 0, 2, 1, 1))
sketch7.addConstraint(Sketcher.Constraint("Coincident", 1, 2, 2, 1))
sketch7.addConstraint(Sketcher.Constraint("Coincident", 2, 2, 3, 1))
sketch7.addConstraint(Sketcher.Constraint("Coincident", 3, 2, 0, 1))
sketch7.addConstraint(Sketcher.Constraint("Coincident", 4, 2, 5, 1))
sketch7.addConstraint(Sketcher.Constraint("Coincident", 5, 2, 6, 1))
sketch7.addConstraint(Sketcher.Constraint("Coincident", 6, 2, 7, 1))
sketch7.addConstraint(Sketcher.Constraint("Coincident", 7, 2, 4, 1))
sketch7.addConstraint(Sketcher.Constraint("Vertical", 0))
sketch7.addConstraint(Sketcher.Constraint("Horizontal", 1))
sketch7.addConstraint(Sketcher.Constraint("Vertical", 2))
sketch7.addConstraint(Sketcher.Constraint("Horizontal", 3))
sketch7.addConstraint(Sketcher.Constraint("Vertical", 4))
sketch7.addConstraint(Sketcher.Constraint("Horizontal", 5))
sketch7.addConstraint(Sketcher.Constraint("Vertical", 6))
sketch7.addConstraint(Sketcher.Constraint("Horizontal", 7))
sketch7.addConstraint(Sketcher.Constraint("PointOnObject", 0, 2, -1))
sketch7.addConstraint(Sketcher.Constraint("Vertical", 3, 2, 4, 2))
sketch7.addConstraint(Sketcher.Constraint("Vertical", 2, 2, 5, 2))
sketch7.addConstraint(Sketcher.Constraint("Equal", 2, 4))
sketch7.addConstraint(Sketcher.Constraint("DistanceX", 1, 1, 1, 2, Q("0.25 in")))
sketch7.addConstraint(Sketcher.Constraint("DistanceY", 4, 2, 3, 2, Q("3.5 in")))
sketch7.addConstraint(Sketcher.Constraint("DistanceY", 0, 2, 0, 1, Q("1.125 in")))
sketch7.addConstraint(Sketcher.Constraint("DistanceX", 0, 2, -1, 1, 64.376207))
pocket6 = body.newObject("PartDesign::Pocket", "Pocket005")
pocket6.Profile = sketch7
pocket6.Length = Q("0.44 in")

sketch8 = body.newObject("Sketcher::SketchObject", "Sketch007")
sketch8.AttachmentSupport = (doc.getObject("XZ_Plane"), [""])
sketch8.MapMode = "FlatFace"
sketch8.addGeometry(Part.LineSegment(V(40.271793, 28.575, 0), V(5.219793, 28.575, 0)), False)
sketch8.addGeometry(Part.LineSegment(V(5.219793, 28.575, 0), V(5.219793, 11.049, 0)), False)
sketch8.addGeometry(Part.LineSegment(V(5.219793, 11.049, 0), V(22.745793, 11.049, 0)), False)
sketch8.addGeometry(Part.LineSegment(V(22.745793, 11.049, 0), V(40.271793, 28.575, 0)), False)
sketch8.addGeometry(Part.LineSegment(V(5.219793, -42.799, 0), V(5.219793, -60.325, 0)), False)
sketch8.addGeometry(Part.LineSegment(V(5.219793, -60.325, 0), V(40.271793, -60.325, 0)), False)
sketch8.addGeometry(Part.LineSegment(V(40.271793, -60.325, 0), V(22.745793, -42.799, 0)), False)
sketch8.addGeometry(Part.LineSegment(V(22.745793, -42.799, 0), V(5.219793, -42.799, 0)), False)
sketch8.addConstraint(Sketcher.Constraint("Coincident", 0, 2, 1, 1))
sketch8.addConstraint(Sketcher.Constraint("Coincident", 1, 2, 2, 1))
sketch8.addConstraint(Sketcher.Constraint("Coincident", 2, 2, 3, 1))
sketch8.addConstraint(Sketcher.Constraint("Coincident", 3, 2, 0, 1))
sketch8.addConstraint(Sketcher.Constraint("Coincident", 4, 2, 5, 1))
sketch8.addConstraint(Sketcher.Constraint("Coincident", 5, 2, 6, 1))
sketch8.addConstraint(Sketcher.Constraint("Coincident", 6, 2, 7, 1))
sketch8.addConstraint(Sketcher.Constraint("Coincident", 7, 2, 4, 1))
sketch8.addConstraint(Sketcher.Constraint("Horizontal", 0))
sketch8.addConstraint(Sketcher.Constraint("Vertical", 1))
sketch8.addConstraint(Sketcher.Constraint("Horizontal", 2))
sketch8.addConstraint(Sketcher.Constraint("Vertical", 4))
sketch8.addConstraint(Sketcher.Constraint("Horizontal", 5))
sketch8.addConstraint(Sketcher.Constraint("Horizontal", 7))
sketch8.addConstraint(Sketcher.Constraint("Perpendicular", 3, 6))
sketch8.addConstraint(Sketcher.Constraint("Vertical", 1, 2, 4, 2))
sketch8.addConstraint(Sketcher.Constraint("Vertical", 3, 2, 5, 2))
sketch8.addConstraint(Sketcher.Constraint("Vertical", 2, 2, 6, 2))
sketch8.addConstraint(Sketcher.Constraint("Equal", 7, 1))
sketch8.addConstraint(Sketcher.Constraint("Equal", 1, 4))
sketch8.addConstraint(Sketcher.Constraint("DistanceX", 0, 2, 0, 1, Q("1.38 in")))
sketch8.addConstraint(Sketcher.Constraint("DistanceY", 4, 2, 0, 2, Q("3.5 in")))
sketch8.addConstraint(Sketcher.Constraint("DistanceY", -1, 1, 0, 2, Q("1.125 in")))
sketch8.addConstraint(Sketcher.Constraint("DistanceX", -1, 1, 0, 2, 5.219793))
pocket7 = body.newObject("PartDesign::Pocket", "Pocket006")
pocket7.Profile = sketch8
pocket7.Length = Q("0.06 in")

doc.recompute()
